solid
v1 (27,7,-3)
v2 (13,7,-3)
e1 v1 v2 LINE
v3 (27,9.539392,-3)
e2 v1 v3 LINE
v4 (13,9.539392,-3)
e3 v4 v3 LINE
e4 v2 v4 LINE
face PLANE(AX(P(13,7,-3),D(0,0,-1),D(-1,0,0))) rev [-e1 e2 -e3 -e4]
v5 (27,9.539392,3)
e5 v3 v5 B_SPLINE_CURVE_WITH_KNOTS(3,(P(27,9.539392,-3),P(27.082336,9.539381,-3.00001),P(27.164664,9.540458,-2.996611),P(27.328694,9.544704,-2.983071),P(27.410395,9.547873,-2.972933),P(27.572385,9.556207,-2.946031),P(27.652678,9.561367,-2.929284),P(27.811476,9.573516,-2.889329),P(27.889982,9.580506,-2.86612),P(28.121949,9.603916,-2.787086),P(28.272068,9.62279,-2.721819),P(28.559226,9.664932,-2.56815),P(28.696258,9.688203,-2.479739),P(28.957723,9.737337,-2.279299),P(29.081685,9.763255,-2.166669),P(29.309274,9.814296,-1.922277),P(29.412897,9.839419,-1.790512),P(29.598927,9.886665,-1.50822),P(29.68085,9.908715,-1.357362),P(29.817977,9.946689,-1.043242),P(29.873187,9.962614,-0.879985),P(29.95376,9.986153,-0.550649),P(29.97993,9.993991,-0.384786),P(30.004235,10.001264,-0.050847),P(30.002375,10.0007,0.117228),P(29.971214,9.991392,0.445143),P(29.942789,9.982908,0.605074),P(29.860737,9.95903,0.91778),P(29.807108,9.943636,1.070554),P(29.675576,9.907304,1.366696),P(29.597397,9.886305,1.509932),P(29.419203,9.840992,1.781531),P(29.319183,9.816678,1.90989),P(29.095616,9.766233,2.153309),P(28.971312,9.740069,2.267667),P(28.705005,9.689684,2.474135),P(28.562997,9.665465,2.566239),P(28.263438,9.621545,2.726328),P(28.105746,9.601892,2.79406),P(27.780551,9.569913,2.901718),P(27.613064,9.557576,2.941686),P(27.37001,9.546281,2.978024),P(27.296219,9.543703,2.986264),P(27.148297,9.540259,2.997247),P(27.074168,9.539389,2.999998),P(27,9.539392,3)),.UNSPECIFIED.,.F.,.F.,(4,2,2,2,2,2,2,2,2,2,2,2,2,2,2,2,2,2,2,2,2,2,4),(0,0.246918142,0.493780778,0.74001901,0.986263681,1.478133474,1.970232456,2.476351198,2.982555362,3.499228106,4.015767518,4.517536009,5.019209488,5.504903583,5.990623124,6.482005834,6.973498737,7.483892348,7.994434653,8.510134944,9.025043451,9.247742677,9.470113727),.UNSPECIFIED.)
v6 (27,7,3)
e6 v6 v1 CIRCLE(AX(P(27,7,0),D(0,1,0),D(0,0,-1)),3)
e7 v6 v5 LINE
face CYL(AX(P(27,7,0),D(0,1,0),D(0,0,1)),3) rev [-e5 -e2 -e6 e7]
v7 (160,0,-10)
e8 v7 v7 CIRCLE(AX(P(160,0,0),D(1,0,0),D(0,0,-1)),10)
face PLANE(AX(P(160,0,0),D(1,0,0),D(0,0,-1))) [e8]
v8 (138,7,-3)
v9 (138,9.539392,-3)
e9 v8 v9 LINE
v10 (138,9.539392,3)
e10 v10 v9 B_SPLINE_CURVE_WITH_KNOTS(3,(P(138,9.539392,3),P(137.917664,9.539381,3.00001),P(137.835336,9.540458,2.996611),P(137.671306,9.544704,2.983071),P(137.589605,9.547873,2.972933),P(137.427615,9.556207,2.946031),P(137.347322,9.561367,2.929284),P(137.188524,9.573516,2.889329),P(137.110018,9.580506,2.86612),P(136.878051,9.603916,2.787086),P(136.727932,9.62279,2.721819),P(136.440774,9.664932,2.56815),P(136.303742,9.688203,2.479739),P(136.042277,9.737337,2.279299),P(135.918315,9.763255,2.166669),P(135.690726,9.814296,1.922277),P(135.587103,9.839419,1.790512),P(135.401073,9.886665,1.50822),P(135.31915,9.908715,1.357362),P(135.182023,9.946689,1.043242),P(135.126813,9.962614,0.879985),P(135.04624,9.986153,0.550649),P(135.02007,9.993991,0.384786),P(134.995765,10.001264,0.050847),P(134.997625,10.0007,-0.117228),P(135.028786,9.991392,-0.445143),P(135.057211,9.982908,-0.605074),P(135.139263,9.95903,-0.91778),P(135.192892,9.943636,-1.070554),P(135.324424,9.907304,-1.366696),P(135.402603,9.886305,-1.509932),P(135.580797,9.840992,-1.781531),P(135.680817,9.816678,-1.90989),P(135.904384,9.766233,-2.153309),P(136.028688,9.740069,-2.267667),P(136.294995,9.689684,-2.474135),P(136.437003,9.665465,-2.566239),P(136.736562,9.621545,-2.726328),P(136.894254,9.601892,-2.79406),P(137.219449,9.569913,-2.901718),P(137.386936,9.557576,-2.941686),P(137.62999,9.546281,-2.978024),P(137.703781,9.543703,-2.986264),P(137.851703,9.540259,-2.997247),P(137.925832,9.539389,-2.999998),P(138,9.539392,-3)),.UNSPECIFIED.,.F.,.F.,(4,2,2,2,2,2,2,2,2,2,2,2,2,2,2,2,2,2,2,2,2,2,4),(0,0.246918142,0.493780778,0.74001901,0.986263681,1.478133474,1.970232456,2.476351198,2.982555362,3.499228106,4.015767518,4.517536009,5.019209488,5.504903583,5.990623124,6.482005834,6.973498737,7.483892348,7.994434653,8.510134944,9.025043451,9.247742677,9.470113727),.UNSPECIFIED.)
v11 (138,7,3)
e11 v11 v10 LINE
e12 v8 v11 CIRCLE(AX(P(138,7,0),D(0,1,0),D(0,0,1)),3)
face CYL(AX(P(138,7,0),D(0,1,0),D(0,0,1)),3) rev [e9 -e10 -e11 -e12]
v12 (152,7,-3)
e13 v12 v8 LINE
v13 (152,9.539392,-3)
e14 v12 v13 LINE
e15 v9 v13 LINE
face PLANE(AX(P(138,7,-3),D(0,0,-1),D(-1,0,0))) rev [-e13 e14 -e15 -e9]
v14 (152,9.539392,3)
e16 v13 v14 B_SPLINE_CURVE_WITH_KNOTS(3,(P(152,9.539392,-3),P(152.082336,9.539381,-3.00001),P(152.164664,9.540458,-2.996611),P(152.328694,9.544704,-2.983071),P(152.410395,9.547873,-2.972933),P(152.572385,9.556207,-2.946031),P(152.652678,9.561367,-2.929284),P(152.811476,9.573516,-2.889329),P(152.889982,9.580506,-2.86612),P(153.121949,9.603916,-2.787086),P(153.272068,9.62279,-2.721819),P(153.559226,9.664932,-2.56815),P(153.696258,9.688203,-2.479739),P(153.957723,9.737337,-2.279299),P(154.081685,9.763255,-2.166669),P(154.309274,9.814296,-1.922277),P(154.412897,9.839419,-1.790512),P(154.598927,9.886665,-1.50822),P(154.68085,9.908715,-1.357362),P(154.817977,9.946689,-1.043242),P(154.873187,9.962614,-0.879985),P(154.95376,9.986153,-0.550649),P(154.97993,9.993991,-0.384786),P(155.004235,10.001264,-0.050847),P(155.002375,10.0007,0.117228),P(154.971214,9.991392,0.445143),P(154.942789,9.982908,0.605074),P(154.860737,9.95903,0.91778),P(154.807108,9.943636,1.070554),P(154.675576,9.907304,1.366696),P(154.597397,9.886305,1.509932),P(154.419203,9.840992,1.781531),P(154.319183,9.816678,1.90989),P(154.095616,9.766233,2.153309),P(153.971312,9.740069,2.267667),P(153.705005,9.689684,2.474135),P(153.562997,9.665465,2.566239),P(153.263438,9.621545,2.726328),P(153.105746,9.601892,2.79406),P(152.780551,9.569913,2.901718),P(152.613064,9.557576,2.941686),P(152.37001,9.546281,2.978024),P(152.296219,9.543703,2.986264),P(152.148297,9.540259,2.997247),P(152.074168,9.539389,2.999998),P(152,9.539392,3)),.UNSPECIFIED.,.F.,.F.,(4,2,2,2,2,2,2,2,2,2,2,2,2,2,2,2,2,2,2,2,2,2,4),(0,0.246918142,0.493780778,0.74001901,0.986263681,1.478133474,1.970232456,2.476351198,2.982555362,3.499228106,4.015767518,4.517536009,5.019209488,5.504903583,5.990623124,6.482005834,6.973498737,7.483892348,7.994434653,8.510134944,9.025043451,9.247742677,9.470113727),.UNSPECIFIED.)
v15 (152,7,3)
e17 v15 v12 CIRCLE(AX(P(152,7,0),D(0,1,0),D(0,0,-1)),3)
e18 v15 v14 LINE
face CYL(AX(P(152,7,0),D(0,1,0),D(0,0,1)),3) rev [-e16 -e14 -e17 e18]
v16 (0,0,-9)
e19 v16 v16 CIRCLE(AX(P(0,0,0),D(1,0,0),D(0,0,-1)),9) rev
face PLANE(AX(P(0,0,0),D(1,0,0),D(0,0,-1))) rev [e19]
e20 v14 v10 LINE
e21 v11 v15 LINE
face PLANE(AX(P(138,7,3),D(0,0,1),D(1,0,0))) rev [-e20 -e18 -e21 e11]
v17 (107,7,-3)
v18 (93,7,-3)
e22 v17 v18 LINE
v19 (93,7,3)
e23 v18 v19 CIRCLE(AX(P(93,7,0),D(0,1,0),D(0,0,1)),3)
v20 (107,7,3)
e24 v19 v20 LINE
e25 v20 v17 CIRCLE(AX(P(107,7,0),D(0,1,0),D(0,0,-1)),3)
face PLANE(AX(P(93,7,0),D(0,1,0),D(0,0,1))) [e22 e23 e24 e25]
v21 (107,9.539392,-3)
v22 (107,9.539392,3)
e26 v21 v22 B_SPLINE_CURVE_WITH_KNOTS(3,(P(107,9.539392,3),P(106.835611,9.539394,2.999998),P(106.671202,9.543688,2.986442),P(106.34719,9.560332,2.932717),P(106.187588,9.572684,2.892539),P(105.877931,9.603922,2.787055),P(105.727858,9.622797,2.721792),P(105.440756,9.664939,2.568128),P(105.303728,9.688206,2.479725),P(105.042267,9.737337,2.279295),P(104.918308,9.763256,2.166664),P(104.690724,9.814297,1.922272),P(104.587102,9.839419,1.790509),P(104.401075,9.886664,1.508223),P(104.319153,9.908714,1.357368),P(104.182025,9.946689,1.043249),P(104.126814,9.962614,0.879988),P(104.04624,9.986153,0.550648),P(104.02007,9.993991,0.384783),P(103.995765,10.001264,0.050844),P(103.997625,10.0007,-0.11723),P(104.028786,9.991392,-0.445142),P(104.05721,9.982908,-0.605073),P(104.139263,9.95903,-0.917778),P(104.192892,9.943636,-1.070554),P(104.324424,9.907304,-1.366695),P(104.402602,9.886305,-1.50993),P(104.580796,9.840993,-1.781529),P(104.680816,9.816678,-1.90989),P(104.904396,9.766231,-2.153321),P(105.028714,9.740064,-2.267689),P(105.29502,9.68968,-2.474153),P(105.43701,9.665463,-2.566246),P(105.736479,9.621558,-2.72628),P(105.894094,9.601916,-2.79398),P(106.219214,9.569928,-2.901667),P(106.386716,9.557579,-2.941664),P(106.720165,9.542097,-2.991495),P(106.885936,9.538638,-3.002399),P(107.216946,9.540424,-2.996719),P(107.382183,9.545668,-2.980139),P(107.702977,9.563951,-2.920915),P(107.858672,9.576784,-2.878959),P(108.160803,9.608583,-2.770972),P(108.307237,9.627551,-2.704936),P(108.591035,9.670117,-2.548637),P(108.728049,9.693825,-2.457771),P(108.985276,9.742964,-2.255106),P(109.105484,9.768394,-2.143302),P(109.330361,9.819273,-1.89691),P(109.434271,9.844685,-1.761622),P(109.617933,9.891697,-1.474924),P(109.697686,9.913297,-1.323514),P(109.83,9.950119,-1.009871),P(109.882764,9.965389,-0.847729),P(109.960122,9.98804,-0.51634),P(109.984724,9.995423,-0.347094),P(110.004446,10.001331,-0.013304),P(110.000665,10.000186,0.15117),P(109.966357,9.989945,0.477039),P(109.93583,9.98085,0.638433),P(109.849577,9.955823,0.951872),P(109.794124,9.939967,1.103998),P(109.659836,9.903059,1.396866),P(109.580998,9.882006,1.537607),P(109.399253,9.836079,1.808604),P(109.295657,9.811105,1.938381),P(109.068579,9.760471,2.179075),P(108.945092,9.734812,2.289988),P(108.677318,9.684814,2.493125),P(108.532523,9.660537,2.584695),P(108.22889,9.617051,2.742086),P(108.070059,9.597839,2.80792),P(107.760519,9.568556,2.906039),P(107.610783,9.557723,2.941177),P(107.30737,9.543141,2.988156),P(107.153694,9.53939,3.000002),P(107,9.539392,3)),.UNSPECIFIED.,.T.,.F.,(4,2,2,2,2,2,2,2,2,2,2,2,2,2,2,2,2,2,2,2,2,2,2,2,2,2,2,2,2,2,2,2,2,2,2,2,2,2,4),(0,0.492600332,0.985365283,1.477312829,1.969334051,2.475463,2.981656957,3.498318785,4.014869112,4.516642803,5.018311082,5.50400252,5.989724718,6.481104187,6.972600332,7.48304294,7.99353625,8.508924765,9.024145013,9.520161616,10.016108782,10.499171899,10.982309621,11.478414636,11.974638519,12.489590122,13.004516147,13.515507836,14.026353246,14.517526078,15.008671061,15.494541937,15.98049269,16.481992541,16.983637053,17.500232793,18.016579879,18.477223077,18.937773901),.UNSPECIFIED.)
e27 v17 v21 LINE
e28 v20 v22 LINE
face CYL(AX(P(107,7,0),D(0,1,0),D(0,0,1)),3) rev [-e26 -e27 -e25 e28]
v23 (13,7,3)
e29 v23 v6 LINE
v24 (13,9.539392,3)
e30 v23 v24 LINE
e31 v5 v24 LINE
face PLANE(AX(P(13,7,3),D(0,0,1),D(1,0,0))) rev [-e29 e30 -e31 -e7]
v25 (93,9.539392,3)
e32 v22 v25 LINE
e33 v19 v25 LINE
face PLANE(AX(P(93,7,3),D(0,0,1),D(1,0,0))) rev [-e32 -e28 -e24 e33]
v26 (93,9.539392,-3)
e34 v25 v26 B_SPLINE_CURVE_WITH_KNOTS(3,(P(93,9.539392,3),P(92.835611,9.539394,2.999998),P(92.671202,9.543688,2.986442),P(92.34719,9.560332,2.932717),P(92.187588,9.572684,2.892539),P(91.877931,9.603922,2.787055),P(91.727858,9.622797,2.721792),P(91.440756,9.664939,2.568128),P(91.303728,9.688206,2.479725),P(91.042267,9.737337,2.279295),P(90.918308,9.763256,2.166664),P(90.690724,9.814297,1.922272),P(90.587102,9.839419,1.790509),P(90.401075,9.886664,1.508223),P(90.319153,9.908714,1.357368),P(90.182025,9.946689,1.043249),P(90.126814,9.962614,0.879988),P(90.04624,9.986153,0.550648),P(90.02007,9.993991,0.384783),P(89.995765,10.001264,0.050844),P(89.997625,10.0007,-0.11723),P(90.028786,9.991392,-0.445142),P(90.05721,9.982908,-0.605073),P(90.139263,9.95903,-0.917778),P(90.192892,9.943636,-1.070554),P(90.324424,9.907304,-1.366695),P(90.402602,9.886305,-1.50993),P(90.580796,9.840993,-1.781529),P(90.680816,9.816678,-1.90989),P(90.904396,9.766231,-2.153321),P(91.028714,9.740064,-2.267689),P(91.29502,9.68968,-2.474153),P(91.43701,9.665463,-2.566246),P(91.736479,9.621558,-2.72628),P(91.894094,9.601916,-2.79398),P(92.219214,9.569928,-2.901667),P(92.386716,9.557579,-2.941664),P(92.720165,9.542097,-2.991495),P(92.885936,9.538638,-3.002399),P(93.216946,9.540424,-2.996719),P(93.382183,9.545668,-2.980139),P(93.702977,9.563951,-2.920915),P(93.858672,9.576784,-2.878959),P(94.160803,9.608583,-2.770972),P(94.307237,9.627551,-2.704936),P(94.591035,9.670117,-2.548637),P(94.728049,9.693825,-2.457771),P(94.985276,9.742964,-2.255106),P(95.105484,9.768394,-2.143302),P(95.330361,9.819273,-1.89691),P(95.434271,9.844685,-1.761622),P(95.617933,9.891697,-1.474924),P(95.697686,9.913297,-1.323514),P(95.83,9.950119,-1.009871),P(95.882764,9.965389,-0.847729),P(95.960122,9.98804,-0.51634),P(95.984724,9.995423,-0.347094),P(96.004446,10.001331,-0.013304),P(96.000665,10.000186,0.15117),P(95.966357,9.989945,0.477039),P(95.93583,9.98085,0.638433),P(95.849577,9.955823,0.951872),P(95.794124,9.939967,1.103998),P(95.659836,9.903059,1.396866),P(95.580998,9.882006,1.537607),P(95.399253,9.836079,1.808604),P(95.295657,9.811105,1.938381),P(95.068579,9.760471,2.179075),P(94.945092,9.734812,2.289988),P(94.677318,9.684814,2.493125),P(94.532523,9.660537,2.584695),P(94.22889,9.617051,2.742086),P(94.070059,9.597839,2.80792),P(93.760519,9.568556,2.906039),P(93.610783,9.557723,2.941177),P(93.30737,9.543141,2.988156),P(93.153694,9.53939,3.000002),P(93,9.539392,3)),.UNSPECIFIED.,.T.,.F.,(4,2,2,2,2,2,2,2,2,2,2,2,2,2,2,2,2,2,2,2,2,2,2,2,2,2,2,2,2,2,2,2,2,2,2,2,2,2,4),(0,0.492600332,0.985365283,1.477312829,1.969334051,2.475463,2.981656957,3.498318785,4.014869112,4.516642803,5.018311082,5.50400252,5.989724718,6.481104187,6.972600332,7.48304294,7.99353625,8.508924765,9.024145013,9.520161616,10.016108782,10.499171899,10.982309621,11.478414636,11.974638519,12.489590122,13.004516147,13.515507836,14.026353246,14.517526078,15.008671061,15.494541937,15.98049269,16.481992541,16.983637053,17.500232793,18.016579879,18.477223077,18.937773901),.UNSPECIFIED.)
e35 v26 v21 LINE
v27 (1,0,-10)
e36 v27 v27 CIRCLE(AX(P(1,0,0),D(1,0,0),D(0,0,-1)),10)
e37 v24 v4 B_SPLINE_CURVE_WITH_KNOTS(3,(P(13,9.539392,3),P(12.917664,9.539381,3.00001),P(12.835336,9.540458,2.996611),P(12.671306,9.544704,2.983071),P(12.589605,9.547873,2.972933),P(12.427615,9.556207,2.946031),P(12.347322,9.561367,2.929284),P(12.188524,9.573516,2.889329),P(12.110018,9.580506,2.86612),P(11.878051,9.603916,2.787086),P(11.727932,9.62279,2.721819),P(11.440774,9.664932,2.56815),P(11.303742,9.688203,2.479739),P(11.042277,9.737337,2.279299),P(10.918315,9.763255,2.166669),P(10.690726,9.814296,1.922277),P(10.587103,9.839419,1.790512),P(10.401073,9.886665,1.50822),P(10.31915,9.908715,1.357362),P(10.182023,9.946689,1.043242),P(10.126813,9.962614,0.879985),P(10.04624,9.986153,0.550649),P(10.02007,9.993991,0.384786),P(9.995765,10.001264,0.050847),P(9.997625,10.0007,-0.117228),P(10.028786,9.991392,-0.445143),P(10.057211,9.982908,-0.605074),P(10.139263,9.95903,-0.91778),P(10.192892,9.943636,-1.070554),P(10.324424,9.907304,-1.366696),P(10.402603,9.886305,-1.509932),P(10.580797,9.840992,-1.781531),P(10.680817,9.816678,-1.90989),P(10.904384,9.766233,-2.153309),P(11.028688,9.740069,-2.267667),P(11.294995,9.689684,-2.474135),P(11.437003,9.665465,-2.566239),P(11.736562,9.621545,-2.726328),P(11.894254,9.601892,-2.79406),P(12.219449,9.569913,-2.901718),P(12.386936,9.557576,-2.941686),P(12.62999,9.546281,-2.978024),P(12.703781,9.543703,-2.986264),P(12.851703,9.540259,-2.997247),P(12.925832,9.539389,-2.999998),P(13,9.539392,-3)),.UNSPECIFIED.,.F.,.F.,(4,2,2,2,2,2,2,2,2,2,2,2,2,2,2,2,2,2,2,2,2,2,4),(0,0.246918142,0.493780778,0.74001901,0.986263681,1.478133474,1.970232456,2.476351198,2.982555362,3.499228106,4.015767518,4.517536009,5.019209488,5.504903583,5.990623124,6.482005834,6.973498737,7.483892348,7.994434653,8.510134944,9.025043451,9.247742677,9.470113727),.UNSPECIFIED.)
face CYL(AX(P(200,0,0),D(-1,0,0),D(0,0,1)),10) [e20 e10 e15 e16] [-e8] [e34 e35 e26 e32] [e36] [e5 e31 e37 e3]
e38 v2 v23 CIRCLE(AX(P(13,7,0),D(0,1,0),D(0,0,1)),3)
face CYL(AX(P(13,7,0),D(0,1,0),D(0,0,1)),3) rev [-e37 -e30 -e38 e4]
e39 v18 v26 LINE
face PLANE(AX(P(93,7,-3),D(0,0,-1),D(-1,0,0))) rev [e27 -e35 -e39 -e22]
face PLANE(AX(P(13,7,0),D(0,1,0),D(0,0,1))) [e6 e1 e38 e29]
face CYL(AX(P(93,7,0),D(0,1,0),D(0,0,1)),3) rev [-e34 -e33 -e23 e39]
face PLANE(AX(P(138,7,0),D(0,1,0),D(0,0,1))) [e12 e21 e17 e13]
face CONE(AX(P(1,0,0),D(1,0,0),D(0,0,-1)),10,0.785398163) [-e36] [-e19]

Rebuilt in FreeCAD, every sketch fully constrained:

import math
import FreeCAD as App
import Part
import Sketcher

V = App.Vector


def edges_at(feature, points):
    """Names of the edges that pass closest to the given points."""
    edges = feature.Shape.Edges
    near = lambda p: min(range(len(edges)), key=lambda i: edges[i].distToShape(Part.Vertex(*p))[0])
    return sorted({f"Edge{near(p) + 1}" for p in points})

doc = App.newDocument("Part")
params = doc.addObject("Spreadsheet::Sheet", "Params")
for row, (alias, value) in enumerate([
    ("sketch1_diameter", "20 mm"),
    ("pad1_length", "200 mm"),
    ("sketch2_radius", "3 mm"),
    ("sketch2_width", "14 mm"),
    ("pocket1_length", "3 mm"),
    ("chamfer_size", "1 mm"),
    ("chamfer2_size", "1 mm"),
    ("linearpattern_pitch", "80 mm"),
    ("sketch3_diameter", "20 mm"),
    ("pocket2_length", "40 mm"),
    ("linearpattern2_pitch", "125 mm"),
], start=1):
    params.set(f"A{row}", alias)
    params.set(f"B{row}", "=" + value)
    params.setAlias(f"B{row}", alias)

body = doc.addObject("PartDesign::Body", "Body")

# Sketch on YZ plane
sketch1 = doc.addObject("Sketcher::SketchObject", "Sketch")
body.addObject(sketch1)
sketch1.AttachmentSupport = (doc.YZ_Plane, [""])
sketch1.MapMode = "FlatFace"
sketch1.addGeometry(Part.Circle(V(0, 0, 0), V(0, 0, 1), 10), False)
sketch1.addConstraint([
    Sketcher.Constraint("Coincident", 0, 3, -1, 1),
    Sketcher.Constraint("Diameter", 0, 20.0),
])
sketch1.setExpression("Constraints[1]", "Params.sketch1_diameter")
pad1 = doc.addObject("PartDesign::Pad", "Pad")
body.addObject(pad1)
pad1.Profile = sketch1
pad1.setExpression("Length", "Params.pad1_length")

# Sketch on XZ plane
sketch2 = doc.addObject("Sketcher::SketchObject", "Sketch001")
body.addObject(sketch2)
sketch2.AttachmentSupport = (doc.XZ_Plane, [""])
sketch2.MapMode = "FlatFace"
sketch2.AttachmentOffset = App.Placement(V(0, 0, -10), App.Rotation())
sketch2.addGeometry([
    Part.LineSegment(V(27, -3, 0), V(13, -3, 0)),
    Part.ArcOfCircle(Part.Circle(V(13, 0, 0), V(0, 0, 1), 3), math.radians(90), math.radians(270)),
    Part.LineSegment(V(13, 3, 0), V(27, 3, 0)),
    Part.ArcOfCircle(Part.Circle(V(27, 0, 0), V(0, 0, 1), 3), math.radians(-90), math.radians(90)),
], False)
sketch2.addConstraint([
    Sketcher.Constraint("Tangent", 0, 2, 1, 2),
    Sketcher.Constraint("Tangent", 1, 1, 2, 1),
    Sketcher.Constraint("Tangent", 2, 2, 3, 2),
    Sketcher.Constraint("Tangent", 3, 1, 0, 1),
    Sketcher.Constraint("Horizontal", 0),
    Sketcher.Constraint("Horizontal", 2),
    Sketcher.Constraint("PointOnObject", 1, 3, -1),
    Sketcher.Constraint("Radius", 1, 3.0),
    Sketcher.Constraint("DistanceX", 0, 2, 0, 1, 14.0),
    Sketcher.Constraint("DistanceX", -1, 1, 1, 3, 13.0),
])
sketch2.setExpression("Constraints[7]", "Params.sketch2_radius")
sketch2.setExpression("Constraints[8]", "Params.sketch2_width")
pocket1 = doc.addObject("PartDesign::Pocket", "Pocket")
body.addObject(pocket1)
pocket1.Profile = sketch2
pocket1.setExpression("Length", "Params.pocket1_length")
pocket1.Reversed = True
doc.recompute()

chamfer = doc.addObject("PartDesign::Chamfer", "Chamfer")
body.addObject(chamfer)
chamfer.Base = (pocket1, edges_at(pocket1, [(0, 0, 10)]))
chamfer.setExpression("Size", "Params.chamfer_size")
doc.recompute()

chamfer2 = doc.addObject("PartDesign::Chamfer", "Chamfer001")
body.addObject(chamfer2)
chamfer2.Base = (chamfer, edges_at(chamfer, [(200, 0, 10)]))
chamfer2.setExpression("Size", "Params.chamfer2_size")
doc.recompute()

linearpattern = doc.addObject("PartDesign::LinearPattern", "LinearPattern")
body.addObject(linearpattern)
linearpattern.Originals = [pocket1]
linearpattern.Direction = (doc.X_Axis, [""])
linearpattern.Mode = "offset"
linearpattern.setExpression("Offset", "Params.linearpattern_pitch")
linearpattern.Occurrences = 3
body.Tip = linearpattern

# Sketch on YZ plane
sketch3 = doc.addObject("Sketcher::SketchObject", "Sketch002")
body.addObject(sketch3)
sketch3.AttachmentSupport = (doc.YZ_Plane, [""])
sketch3.MapMode = "FlatFace"
sketch3.AttachmentOffset = App.Placement(V(0, 0, 160), App.Rotation())
sketch3.addGeometry(Part.Circle(V(0, 0, 0), V(0, 0, 1), 10), False)
sketch3.addConstraint([
    Sketcher.Constraint("Coincident", 0, 3, -1, 1),
    Sketcher.Constraint("Diameter", 0, 20.0),
])
sketch3.setExpression("Constraints[1]", "Params.sketch3_diameter")
pocket2 = doc.addObject("PartDesign::Pocket", "Pocket001")
body.addObject(pocket2)
pocket2.Profile = sketch3
pocket2.setExpression("Length", "Params.pocket2_length")
pocket2.Reversed = True
doc.recompute()

linearpattern2 = doc.addObject("PartDesign::LinearPattern", "LinearPattern001")
body.addObject(linearpattern2)
linearpattern2.Originals = [pocket1]
linearpattern2.Direction = (doc.X_Axis, [""])
linearpattern2.Mode = "offset"
linearpattern2.setExpression("Offset", "Params.linearpattern2_pitch")
linearpattern2.Occurrences = 2
body.Tip = linearpattern2

doc.recompute()
